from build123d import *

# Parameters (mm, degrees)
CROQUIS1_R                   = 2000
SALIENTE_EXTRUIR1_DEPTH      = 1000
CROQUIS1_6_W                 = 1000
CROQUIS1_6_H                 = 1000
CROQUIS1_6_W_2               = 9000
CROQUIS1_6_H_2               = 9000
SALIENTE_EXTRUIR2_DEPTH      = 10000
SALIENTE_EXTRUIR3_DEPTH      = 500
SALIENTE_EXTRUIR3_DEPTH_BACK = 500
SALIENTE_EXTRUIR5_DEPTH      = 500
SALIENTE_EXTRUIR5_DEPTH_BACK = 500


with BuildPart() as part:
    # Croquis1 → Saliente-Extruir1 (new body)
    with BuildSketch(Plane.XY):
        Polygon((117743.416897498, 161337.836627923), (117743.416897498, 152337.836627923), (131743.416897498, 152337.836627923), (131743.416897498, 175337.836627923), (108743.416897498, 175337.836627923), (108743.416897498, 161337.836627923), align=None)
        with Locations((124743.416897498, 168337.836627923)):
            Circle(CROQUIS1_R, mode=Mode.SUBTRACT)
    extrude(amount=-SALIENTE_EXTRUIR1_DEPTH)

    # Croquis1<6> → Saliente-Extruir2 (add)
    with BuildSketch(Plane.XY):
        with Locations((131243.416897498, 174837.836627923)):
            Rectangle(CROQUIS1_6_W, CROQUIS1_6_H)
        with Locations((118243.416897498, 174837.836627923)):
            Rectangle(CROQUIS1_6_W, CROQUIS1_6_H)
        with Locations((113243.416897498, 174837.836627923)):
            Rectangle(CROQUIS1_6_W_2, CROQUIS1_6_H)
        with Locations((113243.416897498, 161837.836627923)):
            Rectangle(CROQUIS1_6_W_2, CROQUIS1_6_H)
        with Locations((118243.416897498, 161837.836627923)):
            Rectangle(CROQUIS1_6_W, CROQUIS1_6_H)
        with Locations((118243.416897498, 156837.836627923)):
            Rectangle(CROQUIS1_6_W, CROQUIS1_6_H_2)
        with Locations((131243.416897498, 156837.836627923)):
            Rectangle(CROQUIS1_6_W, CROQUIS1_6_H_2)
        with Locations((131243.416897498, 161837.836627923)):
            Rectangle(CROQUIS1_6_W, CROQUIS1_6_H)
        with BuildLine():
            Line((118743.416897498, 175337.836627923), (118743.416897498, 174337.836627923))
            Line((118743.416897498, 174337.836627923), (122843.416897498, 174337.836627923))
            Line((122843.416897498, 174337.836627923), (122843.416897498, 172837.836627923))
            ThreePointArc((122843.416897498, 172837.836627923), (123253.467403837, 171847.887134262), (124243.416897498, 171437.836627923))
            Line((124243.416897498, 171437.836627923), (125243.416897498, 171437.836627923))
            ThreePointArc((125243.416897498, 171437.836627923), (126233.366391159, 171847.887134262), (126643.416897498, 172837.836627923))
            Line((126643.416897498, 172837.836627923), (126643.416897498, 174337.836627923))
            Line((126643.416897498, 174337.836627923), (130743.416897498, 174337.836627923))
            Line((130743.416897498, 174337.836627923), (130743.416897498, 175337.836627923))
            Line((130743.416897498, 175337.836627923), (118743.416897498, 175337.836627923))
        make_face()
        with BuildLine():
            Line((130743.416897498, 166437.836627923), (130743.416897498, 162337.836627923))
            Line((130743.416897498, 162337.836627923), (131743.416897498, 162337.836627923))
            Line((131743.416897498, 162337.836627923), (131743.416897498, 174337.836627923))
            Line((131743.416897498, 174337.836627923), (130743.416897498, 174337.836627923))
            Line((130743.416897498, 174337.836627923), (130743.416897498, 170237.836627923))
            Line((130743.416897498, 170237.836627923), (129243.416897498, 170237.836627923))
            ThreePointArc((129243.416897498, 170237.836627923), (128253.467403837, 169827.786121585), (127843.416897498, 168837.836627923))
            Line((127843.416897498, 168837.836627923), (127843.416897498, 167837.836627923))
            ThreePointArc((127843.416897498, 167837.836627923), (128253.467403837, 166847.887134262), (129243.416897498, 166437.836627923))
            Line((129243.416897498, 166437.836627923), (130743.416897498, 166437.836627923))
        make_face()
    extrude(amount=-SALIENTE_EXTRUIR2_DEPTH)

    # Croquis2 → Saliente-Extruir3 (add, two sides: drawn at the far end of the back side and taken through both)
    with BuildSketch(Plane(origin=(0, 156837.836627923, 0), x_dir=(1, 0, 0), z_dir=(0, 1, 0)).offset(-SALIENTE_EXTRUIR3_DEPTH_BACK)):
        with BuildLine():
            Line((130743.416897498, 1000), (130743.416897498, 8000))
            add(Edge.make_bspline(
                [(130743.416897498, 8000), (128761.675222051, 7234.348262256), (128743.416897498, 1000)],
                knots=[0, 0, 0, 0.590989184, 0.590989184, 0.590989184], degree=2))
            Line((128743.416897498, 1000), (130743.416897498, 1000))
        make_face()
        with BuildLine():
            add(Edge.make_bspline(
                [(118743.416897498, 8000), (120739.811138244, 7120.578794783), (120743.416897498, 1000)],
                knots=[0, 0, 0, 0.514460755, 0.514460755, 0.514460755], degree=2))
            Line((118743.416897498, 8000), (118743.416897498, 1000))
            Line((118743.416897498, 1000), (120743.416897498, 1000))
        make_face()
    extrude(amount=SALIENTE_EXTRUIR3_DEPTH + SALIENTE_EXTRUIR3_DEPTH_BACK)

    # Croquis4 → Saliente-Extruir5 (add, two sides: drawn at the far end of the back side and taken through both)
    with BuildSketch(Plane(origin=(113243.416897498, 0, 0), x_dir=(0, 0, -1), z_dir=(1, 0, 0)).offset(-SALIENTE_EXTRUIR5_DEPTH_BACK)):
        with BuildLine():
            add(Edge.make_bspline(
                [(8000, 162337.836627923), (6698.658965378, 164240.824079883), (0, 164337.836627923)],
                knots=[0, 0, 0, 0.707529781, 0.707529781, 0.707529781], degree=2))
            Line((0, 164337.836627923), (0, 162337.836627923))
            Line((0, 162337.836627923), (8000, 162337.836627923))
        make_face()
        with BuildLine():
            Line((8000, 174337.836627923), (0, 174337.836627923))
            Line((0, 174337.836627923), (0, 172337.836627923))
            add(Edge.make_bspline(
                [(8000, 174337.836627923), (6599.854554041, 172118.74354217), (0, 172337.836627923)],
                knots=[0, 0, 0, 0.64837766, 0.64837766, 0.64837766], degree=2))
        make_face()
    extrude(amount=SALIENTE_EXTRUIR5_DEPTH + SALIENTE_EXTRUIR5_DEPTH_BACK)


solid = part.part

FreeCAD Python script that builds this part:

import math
import FreeCAD as App
import Part
import Sketcher
from FreeCAD import Vector
Q = App.Units.Quantity

doc = App.newDocument("Part")
params = doc.addObject("Spreadsheet::Sheet", "Params")
for row, (alias, value) in enumerate([
    ("sketch1_diameter", "4000 mm"),
    ("sketch1_width", "14000 mm"),
    ("sketch1_width2", "23000 mm"),
    ("pad1_length", "1000 mm"),
    ("sketch2_radius", "1400 mm"),
    ("sketch2_width", "23000 mm"),
    ("sketch2_width2", "14100 mm"),
    ("sketch2_width3", "1000 mm"),
    ("sketch2_width4", "4100 mm"),
    ("pad2_length", "10000 mm"),
    ("pad3_length", "500 mm"),
    ("pad3_length2", "500 mm"),
    ("pad4_length", "500 mm"),
    ("pad4_length2", "500 mm"),
], start=1):
    params.set(f"A{row}", alias)
    params.set(f"B{row}", "=" + value)
    params.setAlias(f"B{row}", alias)

body = doc.addObject("PartDesign::Body", "Body")

# Sketch on XY plane
sketch1 = body.newObject("Sketcher::SketchObject", "Sketch")
sketch1.AttachmentSupport = (doc.getObject("XY_Plane"), [""])
sketch1.MapMode = "FlatFace"
sketch1.addGeometry([
    Part.LineSegment(Vector(117743.416897, 161337.836628, 0), Vector(117743.416897, 152337.836628, 0)),  # 0
    Part.LineSegment(Vector(117743.416897, 152337.836628, 0), Vector(131743.416897, 152337.836628, 0)),  # 1
    Part.LineSegment(Vector(131743.416897, 152337.836628, 0), Vector(131743.416897, 175337.836628, 0)),  # 2
    Part.LineSegment(Vector(131743.416897, 175337.836628, 0), Vector(108743.416897, 175337.836628, 0)),  # 3
    Part.LineSegment(Vector(108743.416897, 175337.836628, 0), Vector(108743.416897, 161337.836628, 0)),  # 4
    Part.LineSegment(Vector(108743.416897, 161337.836628, 0), Vector(117743.416897, 161337.836628, 0)),  # 5
    Part.Circle(Vector(124743.416897, 168337.836628, 0), Vector(0, 0, 1), 2000),  # 6
], False)
sketch1.addConstraint([
    Sketcher.Constraint("Coincident", 0, 2, 1, 1),
    Sketcher.Constraint("Coincident", 1, 2, 2, 1),
    Sketcher.Constraint("Coincident", 2, 2, 3, 1),
    Sketcher.Constraint("Coincident", 3, 2, 4, 1),
    Sketcher.Constraint("Coincident", 4, 2, 5, 1),
    Sketcher.Constraint("Coincident", 5, 2, 0, 1),
    Sketcher.Constraint("Vertical", 0),
    Sketcher.Constraint("Horizontal", 1),
    Sketcher.Constraint("Vertical", 2),
    Sketcher.Constraint("Horizontal", 3),
    Sketcher.Constraint("Vertical", 4),
    Sketcher.Constraint("Horizontal", 5),
    Sketcher.Constraint("Equal", 5, 0),
    Sketcher.Constraint("Equal", 3, 2),
    Sketcher.Constraint("Diameter", 6, Q("4000 mm")),
    Sketcher.Constraint("DistanceX", 1, 1, 1, 2, Q("14000 mm")),
    Sketcher.Constraint("DistanceX", 3, 2, 3, 1, Q("23000 mm")),
    Sketcher.Constraint("DistanceX", 0, 2, 6, 3, Q("7000 mm")),
    Sketcher.Constraint("DistanceY", 0, 2, 6, 3, Q("16000 mm")),
    Sketcher.Constraint("DistanceX", -1, 1, 6, 3, Q("124743.416897 mm")),
    Sketcher.Constraint("DistanceY", -1, 1, 6, 3, Q("168337.836628 mm")),
])
sketch1.setExpression("Constraints[14]", "Params.sketch1_diameter")
sketch1.setExpression("Constraints[15]", "Params.sketch1_width")
sketch1.setExpression("Constraints[16]", "Params.sketch1_width2")
pad1 = body.newObject("PartDesign::Pad", "Pad")
pad1.Profile = sketch1
pad1.setExpression("Length", "Params.pad1_length")
pad1.Reversed = True

# Sketch on XY plane
sketch2 = body.newObject("Sketcher::SketchObject", "Sketch001")
sketch2.AttachmentSupport = (doc.getObject("XY_Plane"), [""])
sketch2.MapMode = "FlatFace"
sketch2.addGeometry([
    Part.LineSegment(Vector(131743.416897, 175337.836628, 0), Vector(108743.416897, 175337.836628, 0)),  # 0
    Part.LineSegment(Vector(108743.416897, 175337.836628, 0), Vector(108743.416897, 174337.836628, 0)),  # 1
    Part.LineSegment(Vector(108743.416897, 174337.836628, 0), Vector(122843.416897, 174337.836628, 0)),  # 2
    Part.LineSegment(Vector(122843.416897, 174337.836628, 0), Vector(122843.416897, 172837.836628, 0)),  # 3
    Part.ArcOfCircle(Part.Circle(Vector(124243.416897, 172837.836628, 0), Vector(0, 0, 1), 1400), math.radians(-180), math.radians(-90)),  # 4
    Part.LineSegment(Vector(124243.416897, 171437.836628, 0), Vector(125243.416897, 171437.836628, 0)),  # 5
    Part.ArcOfCircle(Part.Circle(Vector(125243.416897, 172837.836628, 0), Vector(0, 0, 1), 1400), math.radians(-90), math.radians(0)),  # 6
    Part.LineSegment(Vector(126643.416897, 172837.836628, 0), Vector(126643.416897, 174337.836628, 0)),  # 7
    Part.LineSegment(Vector(126643.416897, 174337.836628, 0), Vector(130743.416897, 174337.836628, 0)),  # 8
    Part.LineSegment(Vector(130743.416897, 174337.836628, 0), Vector(130743.416897, 170237.836628, 0)),  # 9
    Part.LineSegment(Vector(130743.416897, 170237.836628, 0), Vector(129243.416897, 170237.836628, 0)),  # 10
    Part.ArcOfCircle(Part.Circle(Vector(129243.416897, 168837.836628, 0), Vector(0, 0, 1), 1400), math.radians(90), math.radians(180)),  # 11
    Part.LineSegment(Vector(127843.416897, 168837.836628, 0), Vector(127843.416897, 167837.836628, 0)),  # 12
    Part.ArcOfCircle(Part.Circle(Vector(129243.416897, 167837.836628, 0), Vector(0, 0, 1), 1400), math.radians(-180), math.radians(-90)),  # 13
    Part.LineSegment(Vector(129243.416897, 166437.836628, 0), Vector(130743.416897, 166437.836628, 0)),  # 14
    Part.LineSegment(Vector(130743.416897, 166437.836628, 0), Vector(130743.416897, 152337.836628, 0)),  # 15
    Part.LineSegment(Vector(130743.416897, 152337.836628, 0), Vector(131743.416897, 152337.836628, 0)),  # 16
    Part.LineSegment(Vector(131743.416897, 152337.836628, 0), Vector(131743.416897, 175337.836628, 0)),  # 17
    Part.LineSegment(Vector(108743.416897, 162337.836628, 0), Vector(108743.416897, 161337.836628, 0)),  # 18
    Part.LineSegment(Vector(108743.416897, 161337.836628, 0), Vector(117743.416897, 161337.836628, 0)),  # 19
    Part.LineSegment(Vector(117743.416897, 161337.836628, 0), Vector(117743.416897, 152337.836628, 0)),  # 20
    Part.LineSegment(Vector(117743.416897, 152337.836628, 0), Vector(118743.416897, 152337.836628, 0)),  # 21
    Part.LineSegment(Vector(118743.416897, 152337.836628, 0), Vector(118743.416897, 162337.836628, 0)),  # 22
    Part.LineSegment(Vector(118743.416897, 162337.836628, 0), Vector(108743.416897, 162337.836628, 0)),  # 23
], False)
sketch2.addConstraint([
    Sketcher.Constraint("Coincident", 0, 2, 1, 1),
    Sketcher.Constraint("Coincident", 1, 2, 2, 1),
    Sketcher.Constraint("Coincident", 2, 2, 3, 1),
    Sketcher.Constraint("Coincident", 3, 2, 4, 1),
    Sketcher.Constraint("Coincident", 4, 2, 5, 1),
    Sketcher.Constraint("Coincident", 5, 2, 6, 1),
    Sketcher.Constraint("Coincident", 6, 2, 7, 1),
    Sketcher.Constraint("Coincident", 7, 2, 8, 1),
    Sketcher.Constraint("Coincident", 8, 2, 9, 1),
    Sketcher.Constraint("Coincident", 9, 2, 10, 1),
    Sketcher.Constraint("Coincident", 10, 2, 11, 1),
    Sketcher.Constraint("Coincident", 11, 2, 12, 1),
    Sketcher.Constraint("Coincident", 12, 2, 13, 1),
    Sketcher.Constraint("Coincident", 13, 2, 14, 1),
    Sketcher.Constraint("Coincident", 14, 2, 15, 1),
    Sketcher.Constraint("Coincident", 15, 2, 16, 1),
    Sketcher.Constraint("Coincident", 16, 2, 17, 1),
    Sketcher.Constraint("Coincident", 17, 2, 0, 1),
    Sketcher.Constraint("Coincident", 18, 2, 19, 1),
    Sketcher.Constraint("Coincident", 19, 2, 20, 1),
    Sketcher.Constraint("Coincident", 20, 2, 21, 1),
    Sketcher.Constraint("Coincident", 21, 2, 22, 1),
    Sketcher.Constraint("Coincident", 22, 2, 23, 1),
    Sketcher.Constraint("Coincident", 23, 2, 18, 1),
    Sketcher.Constraint("Horizontal", 0),
    Sketcher.Constraint("Vertical", 1),
    Sketcher.Constraint("Horizontal", 2),
    Sketcher.Constraint("Vertical", 3),
    Sketcher.Constraint("Horizontal", 5),
    Sketcher.Constraint("Vertical", 7),
    Sketcher.Constraint("Horizontal", 8),
    Sketcher.Constraint("Vertical", 9),
    Sketcher.Constraint("Horizontal", 10),
    Sketcher.Constraint("Vertical", 12),
    Sketcher.Constraint("Horizontal", 14),
    Sketcher.Constraint("Vertical", 15),
    Sketcher.Constraint("Horizontal", 16),
    Sketcher.Constraint("Vertical", 17),
    Sketcher.Constraint("Vertical", 18),
    Sketcher.Constraint("Horizontal", 19),
    Sketcher.Constraint("Vertical", 20),
    Sketcher.Constraint("Horizontal", 21),
    Sketcher.Constraint("Vertical", 22),
    Sketcher.Constraint("Horizontal", 23),
    Sketcher.Constraint("Equal", 4, 6),
    Sketcher.Constraint("Equal", 6, 11),
    Sketcher.Constraint("Equal", 11, 13),
    Sketcher.Constraint("Horizontal", 6, 3, 3, 2),
    Sketcher.Constraint("Horizontal", 2, 2, 7, 2),
    Sketcher.Constraint("Horizontal", 13, 3, 12, 2),
    Sketcher.Constraint("Horizontal", 16, 2, 20, 2),
    Sketcher.Constraint("Vertical", 6, 3, 5, 2),
    Sketcher.Constraint("Vertical", 13, 3, 10, 2),
    Sketcher.Constraint("Vertical", 9, 2, 14, 2),
    Sketcher.Constraint("Vertical", 1, 2, 18, 2),
    Sketcher.Constraint("Equal", 10, 14),
    Sketcher.Constraint("Equal", 5, 16),
    Sketcher.Constraint("Equal", 16, 21),
    Sketcher.Constraint("Equal", 21, 1),
    Sketcher.Constraint("Equal", 14, 3),
    Sketcher.Constraint("Equal", 3, 7),
    Sketcher.Constraint("Equal", 8, 9),
    Sketcher.Constraint("Equal", 1, 12),
    Sketcher.Constraint("Equal", 2, 15),
    Sketcher.Constraint("Equal", 0, 17),
    Sketcher.Constraint("Equal", 12, 18),
    Sketcher.Constraint("Equal", 19, 20),
    Sketcher.Constraint("Radius", 4, Q("1400 mm")),
    Sketcher.Constraint("DistanceX", 0, 2, 0, 1, Q("23000 mm")),
    Sketcher.Constraint("DistanceX", 2, 1, 2, 2, Q("14100 mm")),
    Sketcher.Constraint("DistanceX", 5, 1, 5, 2, Q("1000 mm")),
    Sketcher.Constraint("DistanceX", 8, 1, 8, 2, Q("4100 mm")),
    Sketcher.Constraint("DistanceX", 10, 2, 10, 1, Q("1500 mm")),
    Sketcher.Constraint("DistanceX", 19, 1, 19, 2, Q("9000 mm")),
    Sketcher.Constraint("DistanceX", -1, 1, 4, 3, Q("124243.416897 mm")),
    Sketcher.Constraint("DistanceY", -1, 1, 4, 3, Q("172837.836628 mm")),
])
sketch2.setExpression("Constraints[67]", "Params.sketch2_radius")
sketch2.setExpression("Constraints[68]", "Params.sketch2_width")
sketch2.setExpression("Constraints[69]", "Params.sketch2_width2")
sketch2.setExpression("Constraints[70]", "Params.sketch2_width3")
sketch2.setExpression("Constraints[71]", "Params.sketch2_width4")
pad2 = body.newObject("PartDesign::Pad", "Pad001")
pad2.Profile = sketch2
pad2.setExpression("Length", "Params.pad2_length")
pad2.Reversed = True

# Sketch on XZ plane
sketch3 = body.newObject("Sketcher::SketchObject", "Sketch002")
sketch3.AttachmentSupport = (doc.getObject("XZ_Plane"), [""])
sketch3.MapMode = "FlatFace"
sketch3.AttachmentOffset = App.Placement(Vector(0, 0, -156837.836628), App.Rotation())
sketch3.addGeometry([
    Part.LineSegment(Vector(130743.416897, -1000, 0), Vector(130743.416897, -8000, 0)),  # 0
    Part.BSplineCurve([Vector(130743.416897, -8000, 0), Vector(128761.675222, -7234.348262, 0), Vector(128743.416897, -1000, 0)], [3, 3], [0, 0.590989184], False, 2, [1, 1, 1], False),  # 1
    Part.LineSegment(Vector(128743.416897, -1000, 0), Vector(130743.416897, -1000, 0)),  # 2
    Part.BSplineCurve([Vector(118743.416897, -8000, 0), Vector(120739.811138, -7120.578795, 0), Vector(120743.416897, -1000, 0)], [3, 3], [0, 0.514460755], False, 2, [1, 1, 1], False),  # 3
    Part.LineSegment(Vector(118743.416897, -8000, 0), Vector(118743.416897, -1000, 0)),  # 4
    Part.LineSegment(Vector(118743.416897, -1000, 0), Vector(120743.416897, -1000, 0)),  # 5
], False)
sketch3.addConstraint([
    Sketcher.Constraint("Block", 1),
    Sketcher.Constraint("Block", 3),
    Sketcher.Constraint("Coincident", 0, 2, 1, 1),
    Sketcher.Constraint("Coincident", 1, 2, 2, 1),
    Sketcher.Constraint("Coincident", 2, 2, 0, 1),
    Sketcher.Constraint("Coincident", 3, 1, 4, 1),
    Sketcher.Constraint("Coincident", 4, 2, 5, 1),
    Sketcher.Constraint("Coincident", 5, 2, 3, 2),
    Sketcher.Constraint("Vertical", 0),
    Sketcher.Constraint("Horizontal", 2),
    Sketcher.Constraint("Vertical", 4),
    Sketcher.Constraint("Horizontal", 5),
])
pad3 = body.newObject("PartDesign::Pad", "Pad002")
pad3.Profile = sketch3
pad3.Type = "TwoLengths"
pad3.setExpression("Length", "Params.pad3_length")
pad3.setExpression("Length2", "Params.pad3_length2")
pad3.Reversed = True

# Sketch on YZ plane
sketch4 = body.newObject("Sketcher::SketchObject", "Sketch003")
sketch4.AttachmentSupport = (doc.getObject("YZ_Plane"), [""])
sketch4.MapMode = "FlatFace"
sketch4.AttachmentOffset = App.Placement(Vector(0, 0, 113243.416897), App.Rotation())
sketch4.addGeometry([
    Part.BSplineCurve([Vector(162337.836628, -8000, 0), Vector(164240.82408, -6698.658965, 0), Vector(164337.836628, 0, 0)], [3, 3], [0, 0.707529781], False, 2, [1, 1, 1], False),  # 0
    Part.LineSegment(Vector(164337.836628, 0, 0), Vector(162337.836628, 0, 0)),  # 1
    Part.LineSegment(Vector(162337.836628, 0, 0), Vector(162337.836628, -8000, 0)),  # 2
    Part.LineSegment(Vector(174337.836628, -8000, 0), Vector(174337.836628, 0, 0)),  # 3
    Part.LineSegment(Vector(174337.836628, 0, 0), Vector(172337.836628, 0, 0)),  # 4
    Part.BSplineCurve([Vector(174337.836628, -8000, 0), Vector(172118.743542, -6599.854554, 0), Vector(172337.836628, 0, 0)], [3, 3], [0, 0.64837766], False, 2, [1, 1, 1], False),  # 5
], False)
sketch4.addConstraint([
    Sketcher.Constraint("Block", 0),
    Sketcher.Constraint("Block", 5),
    Sketcher.Constraint("Coincident", 0, 2, 1, 1),
    Sketcher.Constraint("Coincident", 1, 2, 2, 1),
    Sketcher.Constraint("Coincident", 2, 2, 0, 1),
    Sketcher.Constraint("Coincident", 3, 2, 4, 1),
    Sketcher.Constraint("Coincident", 4, 2, 5, 2),
    Sketcher.Constraint("Coincident", 5, 1, 3, 1),
    Sketcher.Constraint("Horizontal", 1),
    Sketcher.Constraint("Vertical", 2),
    Sketcher.Constraint("Vertical", 3),
    Sketcher.Constraint("Horizontal", 4),
])
pad4 = body.newObject("PartDesign::Pad", "Pad003")
pad4.Profile = sketch4
pad4.Type = "TwoLengths"
pad4.setExpression("Length", "Params.pad4_length")
pad4.setExpression("Length2", "Params.pad4_length2")

doc.recompute()
